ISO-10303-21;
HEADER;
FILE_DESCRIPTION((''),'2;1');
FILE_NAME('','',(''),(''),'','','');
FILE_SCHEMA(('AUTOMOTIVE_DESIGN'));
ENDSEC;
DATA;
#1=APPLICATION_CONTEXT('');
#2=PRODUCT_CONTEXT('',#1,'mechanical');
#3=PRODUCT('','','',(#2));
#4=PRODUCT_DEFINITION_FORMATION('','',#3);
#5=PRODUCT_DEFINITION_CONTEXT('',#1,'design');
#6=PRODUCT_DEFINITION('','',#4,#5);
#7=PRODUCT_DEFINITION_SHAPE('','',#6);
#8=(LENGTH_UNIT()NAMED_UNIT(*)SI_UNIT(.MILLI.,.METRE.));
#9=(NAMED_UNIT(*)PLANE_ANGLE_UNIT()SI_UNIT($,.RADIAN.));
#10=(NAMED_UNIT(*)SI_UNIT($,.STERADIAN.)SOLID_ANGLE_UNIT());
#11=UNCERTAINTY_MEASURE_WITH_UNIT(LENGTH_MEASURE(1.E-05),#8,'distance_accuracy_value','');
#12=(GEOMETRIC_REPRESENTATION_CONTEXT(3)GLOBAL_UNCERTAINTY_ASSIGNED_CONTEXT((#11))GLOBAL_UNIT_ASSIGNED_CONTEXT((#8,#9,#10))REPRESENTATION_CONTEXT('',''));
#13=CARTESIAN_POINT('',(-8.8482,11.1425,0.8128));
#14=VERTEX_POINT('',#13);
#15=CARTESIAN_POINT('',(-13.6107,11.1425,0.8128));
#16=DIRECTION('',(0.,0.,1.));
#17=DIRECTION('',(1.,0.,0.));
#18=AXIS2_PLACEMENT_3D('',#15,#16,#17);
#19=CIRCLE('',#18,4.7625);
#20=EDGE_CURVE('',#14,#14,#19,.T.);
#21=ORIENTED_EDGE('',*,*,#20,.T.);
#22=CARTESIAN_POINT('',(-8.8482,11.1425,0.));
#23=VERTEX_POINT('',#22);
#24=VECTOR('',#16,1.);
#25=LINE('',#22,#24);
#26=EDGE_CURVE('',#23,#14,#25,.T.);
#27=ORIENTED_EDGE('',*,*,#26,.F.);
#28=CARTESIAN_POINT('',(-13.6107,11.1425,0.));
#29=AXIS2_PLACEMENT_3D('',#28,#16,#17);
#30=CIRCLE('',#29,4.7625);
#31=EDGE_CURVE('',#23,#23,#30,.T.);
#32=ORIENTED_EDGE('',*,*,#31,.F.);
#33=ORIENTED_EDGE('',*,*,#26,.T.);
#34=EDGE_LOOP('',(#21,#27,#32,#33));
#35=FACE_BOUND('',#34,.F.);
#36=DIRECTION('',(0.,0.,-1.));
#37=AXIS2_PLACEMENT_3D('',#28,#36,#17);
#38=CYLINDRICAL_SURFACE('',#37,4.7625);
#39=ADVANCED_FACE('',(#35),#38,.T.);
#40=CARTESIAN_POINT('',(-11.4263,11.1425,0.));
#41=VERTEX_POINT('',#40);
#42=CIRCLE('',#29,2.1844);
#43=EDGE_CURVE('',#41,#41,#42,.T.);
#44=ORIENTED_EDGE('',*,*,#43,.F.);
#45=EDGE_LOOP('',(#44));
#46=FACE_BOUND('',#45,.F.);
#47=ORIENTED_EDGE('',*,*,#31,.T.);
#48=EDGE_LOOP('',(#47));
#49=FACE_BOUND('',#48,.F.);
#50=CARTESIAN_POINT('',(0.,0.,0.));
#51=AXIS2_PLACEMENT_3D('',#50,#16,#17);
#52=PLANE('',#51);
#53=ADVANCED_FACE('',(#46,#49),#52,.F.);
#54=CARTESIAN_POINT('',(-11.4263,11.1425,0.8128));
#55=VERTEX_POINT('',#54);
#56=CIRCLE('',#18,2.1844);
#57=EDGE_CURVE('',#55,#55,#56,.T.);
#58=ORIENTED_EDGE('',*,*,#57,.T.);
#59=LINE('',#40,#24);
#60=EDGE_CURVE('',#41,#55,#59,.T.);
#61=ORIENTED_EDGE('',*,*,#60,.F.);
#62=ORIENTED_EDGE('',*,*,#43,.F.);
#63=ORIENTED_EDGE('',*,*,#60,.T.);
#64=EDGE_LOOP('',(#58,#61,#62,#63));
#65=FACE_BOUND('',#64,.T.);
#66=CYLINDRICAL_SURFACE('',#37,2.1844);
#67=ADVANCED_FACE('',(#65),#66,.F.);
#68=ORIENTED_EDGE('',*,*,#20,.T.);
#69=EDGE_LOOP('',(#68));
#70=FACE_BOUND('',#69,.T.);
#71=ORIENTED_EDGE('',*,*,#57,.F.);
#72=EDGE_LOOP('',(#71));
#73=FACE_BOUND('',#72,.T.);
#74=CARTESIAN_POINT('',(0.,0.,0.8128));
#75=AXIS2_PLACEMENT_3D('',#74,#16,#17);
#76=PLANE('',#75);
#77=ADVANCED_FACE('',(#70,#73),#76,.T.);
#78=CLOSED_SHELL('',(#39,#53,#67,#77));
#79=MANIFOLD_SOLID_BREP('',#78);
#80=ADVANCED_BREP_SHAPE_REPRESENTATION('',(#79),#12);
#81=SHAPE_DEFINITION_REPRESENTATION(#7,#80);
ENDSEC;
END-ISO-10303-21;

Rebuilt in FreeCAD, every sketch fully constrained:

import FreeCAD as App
import Part
import Sketcher
from FreeCAD import Vector
Q = App.Units.Quantity

doc = App.newDocument("Part")
params = doc.addObject("Spreadsheet::Sheet", "Params")
for row, (alias, value) in enumerate([
    ("sketch1_diameter", "0.375 in"),
    ("sketch1_diameter2", "0.172 in"),
    ("pad1_length", "0.032 in"),
], start=1):
    params.set(f"A{row}", alias)
    params.set(f"B{row}", "=" + value)
    params.setAlias(f"B{row}", alias)

body = doc.addObject("PartDesign::Body", "Body")

sketch1 = body.newObject("Sketcher::SketchObject", "Sketch")
sketch1.AttachmentSupport = (doc.getObject("XY_Plane"), [""])
sketch1.MapMode = "FlatFace"
sketch1.addGeometry(Part.Circle(Vector(-13.6, 11.1, 0), Vector(0, 0, 1), 4.8), False)
sketch1.addGeometry(Part.Circle(Vector(-13.6, 11.1, 0), Vector(0, 0, 1), 2.2), False)
sketch1.addConstraint(Sketcher.Constraint("Coincident", 1, 3, 0, 3))
sketch1.addConstraint(Sketcher.Constraint("Diameter", 0, Q("0.375 in")))
sketch1.addConstraint(Sketcher.Constraint("Diameter", 1, Q("0.172 in")))
sketch1.addConstraint(Sketcher.Constraint("DistanceX", 0, 3, -1, 1, Q("13.6107 mm")))
sketch1.addConstraint(Sketcher.Constraint("DistanceY", -1, 1, 0, 3, Q("11.1425 mm")))
sketch1.setExpression("Constraints[1]", "Params.sketch1_diameter")
sketch1.setExpression("Constraints[2]", "Params.sketch1_diameter2")
pad1 = body.newObject("PartDesign::Pad", "Pad")
pad1.Profile = sketch1
pad1.setExpression("Length", "Params.pad1_length")

doc.recompute()
